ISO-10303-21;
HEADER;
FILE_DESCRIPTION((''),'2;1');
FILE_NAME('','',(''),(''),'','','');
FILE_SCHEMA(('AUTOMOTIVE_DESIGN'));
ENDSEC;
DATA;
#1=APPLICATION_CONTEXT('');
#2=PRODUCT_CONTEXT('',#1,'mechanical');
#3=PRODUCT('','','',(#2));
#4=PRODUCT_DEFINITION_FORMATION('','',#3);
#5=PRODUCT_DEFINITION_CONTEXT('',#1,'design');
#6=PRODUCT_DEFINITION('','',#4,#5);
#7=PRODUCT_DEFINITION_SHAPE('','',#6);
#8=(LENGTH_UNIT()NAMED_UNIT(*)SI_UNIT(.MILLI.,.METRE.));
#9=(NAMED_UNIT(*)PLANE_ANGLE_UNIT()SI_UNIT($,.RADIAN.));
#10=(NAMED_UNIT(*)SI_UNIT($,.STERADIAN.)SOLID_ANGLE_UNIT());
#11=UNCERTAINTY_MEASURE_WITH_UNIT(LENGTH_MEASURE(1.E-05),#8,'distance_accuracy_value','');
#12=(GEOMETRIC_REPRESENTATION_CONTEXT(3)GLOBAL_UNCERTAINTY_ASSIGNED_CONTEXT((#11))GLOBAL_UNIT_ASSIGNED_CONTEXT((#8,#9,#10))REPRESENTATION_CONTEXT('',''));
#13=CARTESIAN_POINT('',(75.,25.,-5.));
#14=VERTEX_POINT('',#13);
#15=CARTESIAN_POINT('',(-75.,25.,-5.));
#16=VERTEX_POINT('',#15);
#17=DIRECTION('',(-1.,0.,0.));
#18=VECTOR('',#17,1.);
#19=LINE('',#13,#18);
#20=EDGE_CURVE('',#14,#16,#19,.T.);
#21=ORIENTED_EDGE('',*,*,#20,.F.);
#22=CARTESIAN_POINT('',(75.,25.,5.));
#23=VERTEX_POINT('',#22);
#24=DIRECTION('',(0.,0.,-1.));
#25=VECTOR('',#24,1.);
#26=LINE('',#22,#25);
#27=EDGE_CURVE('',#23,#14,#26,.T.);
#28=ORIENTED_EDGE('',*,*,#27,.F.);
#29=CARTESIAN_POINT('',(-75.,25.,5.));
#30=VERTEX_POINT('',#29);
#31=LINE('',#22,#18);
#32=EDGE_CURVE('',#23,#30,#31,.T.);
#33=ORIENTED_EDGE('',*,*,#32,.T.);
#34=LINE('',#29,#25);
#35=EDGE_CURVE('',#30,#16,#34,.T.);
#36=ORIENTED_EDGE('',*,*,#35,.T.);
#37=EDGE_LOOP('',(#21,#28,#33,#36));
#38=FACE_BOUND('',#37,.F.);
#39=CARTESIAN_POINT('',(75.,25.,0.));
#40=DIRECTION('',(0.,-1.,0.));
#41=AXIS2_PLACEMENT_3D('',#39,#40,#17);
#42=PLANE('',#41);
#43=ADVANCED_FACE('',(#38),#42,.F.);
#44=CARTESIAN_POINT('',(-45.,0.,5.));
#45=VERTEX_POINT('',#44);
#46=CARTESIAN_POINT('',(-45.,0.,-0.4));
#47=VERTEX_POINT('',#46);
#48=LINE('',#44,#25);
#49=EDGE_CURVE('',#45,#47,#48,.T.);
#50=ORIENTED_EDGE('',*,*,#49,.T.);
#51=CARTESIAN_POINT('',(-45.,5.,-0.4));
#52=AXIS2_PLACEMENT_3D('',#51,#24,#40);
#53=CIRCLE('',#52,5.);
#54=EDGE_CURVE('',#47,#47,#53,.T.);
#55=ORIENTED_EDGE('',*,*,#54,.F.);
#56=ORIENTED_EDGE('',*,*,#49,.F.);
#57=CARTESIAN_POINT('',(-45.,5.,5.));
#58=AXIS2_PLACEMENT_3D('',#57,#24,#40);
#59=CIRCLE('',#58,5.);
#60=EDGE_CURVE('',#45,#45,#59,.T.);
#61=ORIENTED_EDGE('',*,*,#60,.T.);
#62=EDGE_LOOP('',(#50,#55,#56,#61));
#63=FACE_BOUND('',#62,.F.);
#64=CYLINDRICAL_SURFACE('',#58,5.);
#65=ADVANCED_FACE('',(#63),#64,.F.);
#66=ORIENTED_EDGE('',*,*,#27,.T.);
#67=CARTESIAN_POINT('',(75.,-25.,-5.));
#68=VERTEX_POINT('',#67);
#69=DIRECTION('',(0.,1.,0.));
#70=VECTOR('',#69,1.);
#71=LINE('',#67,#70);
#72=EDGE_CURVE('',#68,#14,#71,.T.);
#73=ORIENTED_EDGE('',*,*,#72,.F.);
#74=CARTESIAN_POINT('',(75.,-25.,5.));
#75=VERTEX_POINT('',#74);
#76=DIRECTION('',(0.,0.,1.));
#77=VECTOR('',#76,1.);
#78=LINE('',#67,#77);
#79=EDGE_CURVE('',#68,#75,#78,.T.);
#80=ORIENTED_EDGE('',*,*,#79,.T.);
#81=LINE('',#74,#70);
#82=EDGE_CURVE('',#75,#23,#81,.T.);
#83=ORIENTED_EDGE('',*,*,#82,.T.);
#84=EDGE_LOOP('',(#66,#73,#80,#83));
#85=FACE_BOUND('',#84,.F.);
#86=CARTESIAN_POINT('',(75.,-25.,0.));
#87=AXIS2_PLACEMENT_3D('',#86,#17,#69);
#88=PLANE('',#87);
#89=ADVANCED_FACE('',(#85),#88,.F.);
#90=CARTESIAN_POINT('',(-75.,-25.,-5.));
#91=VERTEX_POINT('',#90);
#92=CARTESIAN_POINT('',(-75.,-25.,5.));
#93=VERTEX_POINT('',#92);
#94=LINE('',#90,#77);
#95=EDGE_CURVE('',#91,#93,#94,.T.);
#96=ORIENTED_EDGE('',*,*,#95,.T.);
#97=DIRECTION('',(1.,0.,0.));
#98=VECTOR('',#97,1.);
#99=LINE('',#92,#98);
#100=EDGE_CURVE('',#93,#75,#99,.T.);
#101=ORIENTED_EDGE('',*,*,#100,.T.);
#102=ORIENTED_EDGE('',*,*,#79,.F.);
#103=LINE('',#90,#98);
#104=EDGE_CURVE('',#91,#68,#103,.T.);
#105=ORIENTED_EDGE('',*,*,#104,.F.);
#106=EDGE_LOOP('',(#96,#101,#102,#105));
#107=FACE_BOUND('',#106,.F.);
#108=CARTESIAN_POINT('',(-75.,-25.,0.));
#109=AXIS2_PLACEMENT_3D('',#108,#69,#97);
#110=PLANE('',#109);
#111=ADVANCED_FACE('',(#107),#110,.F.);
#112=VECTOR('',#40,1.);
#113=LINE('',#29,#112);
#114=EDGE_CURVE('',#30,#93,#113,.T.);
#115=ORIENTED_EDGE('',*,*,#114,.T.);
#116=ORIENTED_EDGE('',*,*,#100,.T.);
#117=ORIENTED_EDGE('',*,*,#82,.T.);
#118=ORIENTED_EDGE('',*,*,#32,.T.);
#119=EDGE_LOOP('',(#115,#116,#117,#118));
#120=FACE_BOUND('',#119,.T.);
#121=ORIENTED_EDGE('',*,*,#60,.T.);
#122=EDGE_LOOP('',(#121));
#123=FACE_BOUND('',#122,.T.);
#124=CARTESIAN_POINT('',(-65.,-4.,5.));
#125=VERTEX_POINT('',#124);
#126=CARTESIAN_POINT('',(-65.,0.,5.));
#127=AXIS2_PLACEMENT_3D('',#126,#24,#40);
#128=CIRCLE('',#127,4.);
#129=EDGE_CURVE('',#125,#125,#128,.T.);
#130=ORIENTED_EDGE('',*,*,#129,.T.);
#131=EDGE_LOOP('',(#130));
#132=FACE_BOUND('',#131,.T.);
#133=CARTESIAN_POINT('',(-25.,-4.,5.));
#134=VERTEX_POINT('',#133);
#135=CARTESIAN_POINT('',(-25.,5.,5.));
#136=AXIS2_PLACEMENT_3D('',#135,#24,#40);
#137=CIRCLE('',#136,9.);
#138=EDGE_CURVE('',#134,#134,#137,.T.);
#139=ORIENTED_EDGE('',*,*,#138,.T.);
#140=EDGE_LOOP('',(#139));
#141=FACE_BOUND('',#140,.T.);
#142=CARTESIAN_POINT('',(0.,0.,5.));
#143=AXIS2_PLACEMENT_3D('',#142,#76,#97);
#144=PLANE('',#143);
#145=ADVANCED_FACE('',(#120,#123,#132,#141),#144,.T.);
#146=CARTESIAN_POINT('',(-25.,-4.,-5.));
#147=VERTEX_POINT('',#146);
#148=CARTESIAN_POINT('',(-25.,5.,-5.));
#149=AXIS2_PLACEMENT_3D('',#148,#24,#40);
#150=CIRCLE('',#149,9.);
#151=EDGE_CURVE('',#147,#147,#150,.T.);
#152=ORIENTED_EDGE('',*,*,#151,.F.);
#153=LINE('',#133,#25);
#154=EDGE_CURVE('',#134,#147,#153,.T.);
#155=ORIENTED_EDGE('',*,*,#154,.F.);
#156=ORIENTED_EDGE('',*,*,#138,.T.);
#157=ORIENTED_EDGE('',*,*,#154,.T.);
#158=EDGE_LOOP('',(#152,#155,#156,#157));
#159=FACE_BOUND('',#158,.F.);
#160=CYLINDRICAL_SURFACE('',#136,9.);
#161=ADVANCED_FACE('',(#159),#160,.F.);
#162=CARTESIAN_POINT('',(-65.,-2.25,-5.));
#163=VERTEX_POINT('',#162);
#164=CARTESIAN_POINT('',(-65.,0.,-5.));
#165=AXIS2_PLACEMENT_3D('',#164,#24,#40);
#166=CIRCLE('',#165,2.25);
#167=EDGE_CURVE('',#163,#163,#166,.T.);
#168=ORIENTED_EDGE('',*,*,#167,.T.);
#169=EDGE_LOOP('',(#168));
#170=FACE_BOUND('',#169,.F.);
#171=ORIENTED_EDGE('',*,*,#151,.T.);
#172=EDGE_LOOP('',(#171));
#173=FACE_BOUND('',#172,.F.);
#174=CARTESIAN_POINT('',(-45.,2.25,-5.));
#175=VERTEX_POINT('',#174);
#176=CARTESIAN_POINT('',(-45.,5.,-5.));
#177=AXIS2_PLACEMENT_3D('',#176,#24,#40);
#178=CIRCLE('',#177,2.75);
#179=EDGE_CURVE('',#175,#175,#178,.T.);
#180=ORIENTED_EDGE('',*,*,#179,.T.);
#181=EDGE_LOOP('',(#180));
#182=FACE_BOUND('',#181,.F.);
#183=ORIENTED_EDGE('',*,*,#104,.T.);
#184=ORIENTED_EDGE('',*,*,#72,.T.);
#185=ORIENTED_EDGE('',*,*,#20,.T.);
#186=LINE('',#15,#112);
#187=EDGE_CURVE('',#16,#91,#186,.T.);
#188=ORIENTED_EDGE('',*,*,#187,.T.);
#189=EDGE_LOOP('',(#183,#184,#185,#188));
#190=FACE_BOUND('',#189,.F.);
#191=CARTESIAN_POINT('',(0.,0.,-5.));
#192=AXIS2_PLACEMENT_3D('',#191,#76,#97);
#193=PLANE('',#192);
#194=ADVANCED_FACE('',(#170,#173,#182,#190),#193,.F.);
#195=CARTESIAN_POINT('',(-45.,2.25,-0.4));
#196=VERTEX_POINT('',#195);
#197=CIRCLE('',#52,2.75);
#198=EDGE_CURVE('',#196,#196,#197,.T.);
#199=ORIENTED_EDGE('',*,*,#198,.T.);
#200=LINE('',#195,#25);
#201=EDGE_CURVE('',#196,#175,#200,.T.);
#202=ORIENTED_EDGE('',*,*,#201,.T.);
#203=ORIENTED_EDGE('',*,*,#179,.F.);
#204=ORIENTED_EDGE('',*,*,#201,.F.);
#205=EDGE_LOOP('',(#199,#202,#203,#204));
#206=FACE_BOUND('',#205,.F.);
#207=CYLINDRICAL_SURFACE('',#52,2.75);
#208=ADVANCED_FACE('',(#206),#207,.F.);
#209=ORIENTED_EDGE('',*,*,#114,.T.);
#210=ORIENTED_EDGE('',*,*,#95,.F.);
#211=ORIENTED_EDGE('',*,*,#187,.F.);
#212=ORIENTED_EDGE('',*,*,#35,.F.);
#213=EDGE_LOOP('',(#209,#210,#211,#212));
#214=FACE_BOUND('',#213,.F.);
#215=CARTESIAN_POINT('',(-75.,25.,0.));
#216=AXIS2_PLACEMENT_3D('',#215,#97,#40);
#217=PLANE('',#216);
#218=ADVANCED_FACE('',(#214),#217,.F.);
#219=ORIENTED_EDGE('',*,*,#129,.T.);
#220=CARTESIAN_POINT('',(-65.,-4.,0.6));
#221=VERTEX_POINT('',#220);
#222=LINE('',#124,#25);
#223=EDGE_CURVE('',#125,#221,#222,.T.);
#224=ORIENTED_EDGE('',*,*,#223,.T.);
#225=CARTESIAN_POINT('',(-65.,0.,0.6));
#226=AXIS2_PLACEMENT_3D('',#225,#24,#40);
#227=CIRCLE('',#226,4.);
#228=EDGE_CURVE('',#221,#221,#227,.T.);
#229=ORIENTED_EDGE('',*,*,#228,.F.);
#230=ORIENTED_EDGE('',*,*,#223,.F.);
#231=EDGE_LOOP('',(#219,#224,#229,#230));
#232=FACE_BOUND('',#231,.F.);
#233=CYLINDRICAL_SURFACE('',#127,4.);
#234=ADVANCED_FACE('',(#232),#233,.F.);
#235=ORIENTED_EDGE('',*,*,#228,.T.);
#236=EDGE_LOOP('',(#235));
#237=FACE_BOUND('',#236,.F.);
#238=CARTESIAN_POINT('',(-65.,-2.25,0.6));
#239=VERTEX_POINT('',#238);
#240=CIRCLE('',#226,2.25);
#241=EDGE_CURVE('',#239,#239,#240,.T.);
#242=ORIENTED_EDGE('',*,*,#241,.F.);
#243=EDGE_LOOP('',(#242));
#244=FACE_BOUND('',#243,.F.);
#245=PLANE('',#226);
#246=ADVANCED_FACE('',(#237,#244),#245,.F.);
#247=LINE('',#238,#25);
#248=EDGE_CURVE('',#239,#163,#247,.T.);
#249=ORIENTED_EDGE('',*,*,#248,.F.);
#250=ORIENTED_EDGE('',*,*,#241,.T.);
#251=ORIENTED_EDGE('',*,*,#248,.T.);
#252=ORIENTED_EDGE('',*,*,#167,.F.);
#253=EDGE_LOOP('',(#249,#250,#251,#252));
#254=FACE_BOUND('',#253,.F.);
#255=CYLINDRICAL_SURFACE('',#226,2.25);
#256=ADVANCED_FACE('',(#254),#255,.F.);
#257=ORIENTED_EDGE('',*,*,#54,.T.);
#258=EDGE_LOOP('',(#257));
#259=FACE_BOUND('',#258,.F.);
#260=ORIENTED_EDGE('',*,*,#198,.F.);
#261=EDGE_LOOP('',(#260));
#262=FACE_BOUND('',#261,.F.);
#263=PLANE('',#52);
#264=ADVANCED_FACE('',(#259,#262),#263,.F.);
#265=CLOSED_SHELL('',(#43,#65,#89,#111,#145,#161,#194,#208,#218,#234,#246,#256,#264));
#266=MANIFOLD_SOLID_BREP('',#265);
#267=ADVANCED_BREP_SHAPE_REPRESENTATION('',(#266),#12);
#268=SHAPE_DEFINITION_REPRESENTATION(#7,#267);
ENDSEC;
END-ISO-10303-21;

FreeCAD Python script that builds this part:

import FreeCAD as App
import Part
import Sketcher

V = App.Vector
Q = App.Units.Quantity


def add_polygon(sketch, points):
    """Adds a closed chain of lines whose ends are joined by coincident constraints."""
    first, n = sketch.GeometryCount, len(points)
    for a, b in zip(points, points[1:] + points[:1]):
        sketch.addGeometry(Part.LineSegment(App.Vector(*a, 0), App.Vector(*b, 0)), False)
    for i in range(n):
        sketch.addConstraint(Sketcher.Constraint("Coincident", first + i, 2, first + (i + 1) % n, 1))

doc = App.newDocument("Part")
body = doc.addObject("PartDesign::Body", "Body")

# Sketch on XY plane
sketch1 = doc.addObject("Sketcher::SketchObject", "Sketch")
body.addObject(sketch1)
sketch1.AttachmentSupport = (doc.XY_Plane, [""])
sketch1.MapMode = "FlatFace"
add_polygon(sketch1, [(-75, 25), (-75, -25), (75, -25), (75, 25)])  # lines 0-3
sketch1.addConstraint([
    Sketcher.Constraint("Vertical", 0),
    Sketcher.Constraint("Horizontal", 1),
    Sketcher.Constraint("Vertical", 2),
    Sketcher.Constraint("Horizontal", 3),
    Sketcher.Constraint("Symmetric", 0, 2, 2, 2, -1, 1),
    Sketcher.Constraint("DistanceX", 1, 1, 1, 2, Q("150 mm")),
    Sketcher.Constraint("DistanceY", 0, 2, 0, 1, Q("50 mm")),
])
pad1 = doc.addObject("PartDesign::Pad", "Pad")
body.addObject(pad1)
pad1.Profile = sketch1
pad1.Length = 10
pad1.Midplane = True

# Sketch on XY plane
sketch2 = doc.addObject("Sketcher::SketchObject", "Sketch001")
body.addObject(sketch2)
sketch2.AttachmentSupport = (doc.XY_Plane, [""])
sketch2.MapMode = "FlatFace"
sketch2.AttachmentOffset = App.Placement(V(0, 0, 5), App.Rotation())
sketch2.addGeometry(Part.Circle(V(-65, 0, 0), V(0, 0, 1), 2.25), False)
sketch2.addConstraint([
    Sketcher.Constraint("PointOnObject", 0, 3, -1),
    Sketcher.Constraint("Diameter", 0, Q("4.5 mm")),
    Sketcher.Constraint("DistanceX", 0, 3, -1, 1, Q("65 mm")),
])
doc.recompute()
hole = doc.addObject("PartDesign::Hole", "Hole")
body.addObject(hole)
hole.Profile = sketch2
hole.ThreadType = "None"
hole.Diameter = 4.5
hole.DepthType = "Dimension"
hole.Depth = 14.2
hole.DrillPoint = "Angled"
hole.DrillPointAngle = 118
hole.HoleCutType = "Counterbore"
hole.HoleCutDiameter = 8
hole.HoleCutDepth = 4.4

# Sketch on XY plane
sketch3 = doc.addObject("Sketcher::SketchObject", "Sketch002")
body.addObject(sketch3)
sketch3.AttachmentSupport = (doc.XY_Plane, [""])
sketch3.MapMode = "FlatFace"
sketch3.AttachmentOffset = App.Placement(V(0, 0, 5), App.Rotation())
sketch3.addGeometry(Part.Circle(V(-45, 5, 0), V(0, 0, 1), 2.75), False)
sketch3.addConstraint([
    Sketcher.Constraint("Diameter", 0, Q("5.5 mm")),
    Sketcher.Constraint("DistanceX", 0, 3, -1, 1, Q("45 mm")),
    Sketcher.Constraint("DistanceY", -1, 1, 0, 3, Q("5 mm")),
])
doc.recompute()
hole2 = doc.addObject("PartDesign::Hole", "Hole001")
body.addObject(hole2)
hole2.Profile = sketch3
hole2.ThreadType = "None"
hole2.Diameter = 5.5
hole2.DepthType = "Dimension"
hole2.Depth = 14.2
hole2.DrillPoint = "Angled"
hole2.DrillPointAngle = 118
hole2.HoleCutType = "Counterbore"
hole2.HoleCutDiameter = 10
hole2.HoleCutDepth = 5.4

# Sketch on XY plane
sketch4 = doc.addObject("Sketcher::SketchObject", "Sketch003")
body.addObject(sketch4)
sketch4.AttachmentSupport = (doc.XY_Plane, [""])
sketch4.MapMode = "FlatFace"
sketch4.AttachmentOffset = App.Placement(V(0, 0, 5), App.Rotation())
sketch4.addGeometry(Part.Circle(V(-25, 5, 0), V(0, 0, 1), 5.5), False)
sketch4.addConstraint([
    Sketcher.Constraint("Diameter", 0, Q("11 mm")),
    Sketcher.Constraint("DistanceX", 0, 3, -1, 1, Q("25 mm")),
    Sketcher.Constraint("DistanceY", -1, 1, 0, 3, Q("5 mm")),
])
doc.recompute()
hole3 = doc.addObject("PartDesign::Hole", "Hole002")
body.addObject(hole3)
hole3.Profile = sketch4
hole3.ThreadType = "None"
hole3.Diameter = 11
hole3.DepthType = "Dimension"
hole3.Depth = 14.2
hole3.DrillPoint = "Angled"
hole3.DrillPointAngle = 118
hole3.HoleCutType = "Counterbore"
hole3.HoleCutDiameter = 18
hole3.HoleCutDepth = 10.8

doc.recompute()
